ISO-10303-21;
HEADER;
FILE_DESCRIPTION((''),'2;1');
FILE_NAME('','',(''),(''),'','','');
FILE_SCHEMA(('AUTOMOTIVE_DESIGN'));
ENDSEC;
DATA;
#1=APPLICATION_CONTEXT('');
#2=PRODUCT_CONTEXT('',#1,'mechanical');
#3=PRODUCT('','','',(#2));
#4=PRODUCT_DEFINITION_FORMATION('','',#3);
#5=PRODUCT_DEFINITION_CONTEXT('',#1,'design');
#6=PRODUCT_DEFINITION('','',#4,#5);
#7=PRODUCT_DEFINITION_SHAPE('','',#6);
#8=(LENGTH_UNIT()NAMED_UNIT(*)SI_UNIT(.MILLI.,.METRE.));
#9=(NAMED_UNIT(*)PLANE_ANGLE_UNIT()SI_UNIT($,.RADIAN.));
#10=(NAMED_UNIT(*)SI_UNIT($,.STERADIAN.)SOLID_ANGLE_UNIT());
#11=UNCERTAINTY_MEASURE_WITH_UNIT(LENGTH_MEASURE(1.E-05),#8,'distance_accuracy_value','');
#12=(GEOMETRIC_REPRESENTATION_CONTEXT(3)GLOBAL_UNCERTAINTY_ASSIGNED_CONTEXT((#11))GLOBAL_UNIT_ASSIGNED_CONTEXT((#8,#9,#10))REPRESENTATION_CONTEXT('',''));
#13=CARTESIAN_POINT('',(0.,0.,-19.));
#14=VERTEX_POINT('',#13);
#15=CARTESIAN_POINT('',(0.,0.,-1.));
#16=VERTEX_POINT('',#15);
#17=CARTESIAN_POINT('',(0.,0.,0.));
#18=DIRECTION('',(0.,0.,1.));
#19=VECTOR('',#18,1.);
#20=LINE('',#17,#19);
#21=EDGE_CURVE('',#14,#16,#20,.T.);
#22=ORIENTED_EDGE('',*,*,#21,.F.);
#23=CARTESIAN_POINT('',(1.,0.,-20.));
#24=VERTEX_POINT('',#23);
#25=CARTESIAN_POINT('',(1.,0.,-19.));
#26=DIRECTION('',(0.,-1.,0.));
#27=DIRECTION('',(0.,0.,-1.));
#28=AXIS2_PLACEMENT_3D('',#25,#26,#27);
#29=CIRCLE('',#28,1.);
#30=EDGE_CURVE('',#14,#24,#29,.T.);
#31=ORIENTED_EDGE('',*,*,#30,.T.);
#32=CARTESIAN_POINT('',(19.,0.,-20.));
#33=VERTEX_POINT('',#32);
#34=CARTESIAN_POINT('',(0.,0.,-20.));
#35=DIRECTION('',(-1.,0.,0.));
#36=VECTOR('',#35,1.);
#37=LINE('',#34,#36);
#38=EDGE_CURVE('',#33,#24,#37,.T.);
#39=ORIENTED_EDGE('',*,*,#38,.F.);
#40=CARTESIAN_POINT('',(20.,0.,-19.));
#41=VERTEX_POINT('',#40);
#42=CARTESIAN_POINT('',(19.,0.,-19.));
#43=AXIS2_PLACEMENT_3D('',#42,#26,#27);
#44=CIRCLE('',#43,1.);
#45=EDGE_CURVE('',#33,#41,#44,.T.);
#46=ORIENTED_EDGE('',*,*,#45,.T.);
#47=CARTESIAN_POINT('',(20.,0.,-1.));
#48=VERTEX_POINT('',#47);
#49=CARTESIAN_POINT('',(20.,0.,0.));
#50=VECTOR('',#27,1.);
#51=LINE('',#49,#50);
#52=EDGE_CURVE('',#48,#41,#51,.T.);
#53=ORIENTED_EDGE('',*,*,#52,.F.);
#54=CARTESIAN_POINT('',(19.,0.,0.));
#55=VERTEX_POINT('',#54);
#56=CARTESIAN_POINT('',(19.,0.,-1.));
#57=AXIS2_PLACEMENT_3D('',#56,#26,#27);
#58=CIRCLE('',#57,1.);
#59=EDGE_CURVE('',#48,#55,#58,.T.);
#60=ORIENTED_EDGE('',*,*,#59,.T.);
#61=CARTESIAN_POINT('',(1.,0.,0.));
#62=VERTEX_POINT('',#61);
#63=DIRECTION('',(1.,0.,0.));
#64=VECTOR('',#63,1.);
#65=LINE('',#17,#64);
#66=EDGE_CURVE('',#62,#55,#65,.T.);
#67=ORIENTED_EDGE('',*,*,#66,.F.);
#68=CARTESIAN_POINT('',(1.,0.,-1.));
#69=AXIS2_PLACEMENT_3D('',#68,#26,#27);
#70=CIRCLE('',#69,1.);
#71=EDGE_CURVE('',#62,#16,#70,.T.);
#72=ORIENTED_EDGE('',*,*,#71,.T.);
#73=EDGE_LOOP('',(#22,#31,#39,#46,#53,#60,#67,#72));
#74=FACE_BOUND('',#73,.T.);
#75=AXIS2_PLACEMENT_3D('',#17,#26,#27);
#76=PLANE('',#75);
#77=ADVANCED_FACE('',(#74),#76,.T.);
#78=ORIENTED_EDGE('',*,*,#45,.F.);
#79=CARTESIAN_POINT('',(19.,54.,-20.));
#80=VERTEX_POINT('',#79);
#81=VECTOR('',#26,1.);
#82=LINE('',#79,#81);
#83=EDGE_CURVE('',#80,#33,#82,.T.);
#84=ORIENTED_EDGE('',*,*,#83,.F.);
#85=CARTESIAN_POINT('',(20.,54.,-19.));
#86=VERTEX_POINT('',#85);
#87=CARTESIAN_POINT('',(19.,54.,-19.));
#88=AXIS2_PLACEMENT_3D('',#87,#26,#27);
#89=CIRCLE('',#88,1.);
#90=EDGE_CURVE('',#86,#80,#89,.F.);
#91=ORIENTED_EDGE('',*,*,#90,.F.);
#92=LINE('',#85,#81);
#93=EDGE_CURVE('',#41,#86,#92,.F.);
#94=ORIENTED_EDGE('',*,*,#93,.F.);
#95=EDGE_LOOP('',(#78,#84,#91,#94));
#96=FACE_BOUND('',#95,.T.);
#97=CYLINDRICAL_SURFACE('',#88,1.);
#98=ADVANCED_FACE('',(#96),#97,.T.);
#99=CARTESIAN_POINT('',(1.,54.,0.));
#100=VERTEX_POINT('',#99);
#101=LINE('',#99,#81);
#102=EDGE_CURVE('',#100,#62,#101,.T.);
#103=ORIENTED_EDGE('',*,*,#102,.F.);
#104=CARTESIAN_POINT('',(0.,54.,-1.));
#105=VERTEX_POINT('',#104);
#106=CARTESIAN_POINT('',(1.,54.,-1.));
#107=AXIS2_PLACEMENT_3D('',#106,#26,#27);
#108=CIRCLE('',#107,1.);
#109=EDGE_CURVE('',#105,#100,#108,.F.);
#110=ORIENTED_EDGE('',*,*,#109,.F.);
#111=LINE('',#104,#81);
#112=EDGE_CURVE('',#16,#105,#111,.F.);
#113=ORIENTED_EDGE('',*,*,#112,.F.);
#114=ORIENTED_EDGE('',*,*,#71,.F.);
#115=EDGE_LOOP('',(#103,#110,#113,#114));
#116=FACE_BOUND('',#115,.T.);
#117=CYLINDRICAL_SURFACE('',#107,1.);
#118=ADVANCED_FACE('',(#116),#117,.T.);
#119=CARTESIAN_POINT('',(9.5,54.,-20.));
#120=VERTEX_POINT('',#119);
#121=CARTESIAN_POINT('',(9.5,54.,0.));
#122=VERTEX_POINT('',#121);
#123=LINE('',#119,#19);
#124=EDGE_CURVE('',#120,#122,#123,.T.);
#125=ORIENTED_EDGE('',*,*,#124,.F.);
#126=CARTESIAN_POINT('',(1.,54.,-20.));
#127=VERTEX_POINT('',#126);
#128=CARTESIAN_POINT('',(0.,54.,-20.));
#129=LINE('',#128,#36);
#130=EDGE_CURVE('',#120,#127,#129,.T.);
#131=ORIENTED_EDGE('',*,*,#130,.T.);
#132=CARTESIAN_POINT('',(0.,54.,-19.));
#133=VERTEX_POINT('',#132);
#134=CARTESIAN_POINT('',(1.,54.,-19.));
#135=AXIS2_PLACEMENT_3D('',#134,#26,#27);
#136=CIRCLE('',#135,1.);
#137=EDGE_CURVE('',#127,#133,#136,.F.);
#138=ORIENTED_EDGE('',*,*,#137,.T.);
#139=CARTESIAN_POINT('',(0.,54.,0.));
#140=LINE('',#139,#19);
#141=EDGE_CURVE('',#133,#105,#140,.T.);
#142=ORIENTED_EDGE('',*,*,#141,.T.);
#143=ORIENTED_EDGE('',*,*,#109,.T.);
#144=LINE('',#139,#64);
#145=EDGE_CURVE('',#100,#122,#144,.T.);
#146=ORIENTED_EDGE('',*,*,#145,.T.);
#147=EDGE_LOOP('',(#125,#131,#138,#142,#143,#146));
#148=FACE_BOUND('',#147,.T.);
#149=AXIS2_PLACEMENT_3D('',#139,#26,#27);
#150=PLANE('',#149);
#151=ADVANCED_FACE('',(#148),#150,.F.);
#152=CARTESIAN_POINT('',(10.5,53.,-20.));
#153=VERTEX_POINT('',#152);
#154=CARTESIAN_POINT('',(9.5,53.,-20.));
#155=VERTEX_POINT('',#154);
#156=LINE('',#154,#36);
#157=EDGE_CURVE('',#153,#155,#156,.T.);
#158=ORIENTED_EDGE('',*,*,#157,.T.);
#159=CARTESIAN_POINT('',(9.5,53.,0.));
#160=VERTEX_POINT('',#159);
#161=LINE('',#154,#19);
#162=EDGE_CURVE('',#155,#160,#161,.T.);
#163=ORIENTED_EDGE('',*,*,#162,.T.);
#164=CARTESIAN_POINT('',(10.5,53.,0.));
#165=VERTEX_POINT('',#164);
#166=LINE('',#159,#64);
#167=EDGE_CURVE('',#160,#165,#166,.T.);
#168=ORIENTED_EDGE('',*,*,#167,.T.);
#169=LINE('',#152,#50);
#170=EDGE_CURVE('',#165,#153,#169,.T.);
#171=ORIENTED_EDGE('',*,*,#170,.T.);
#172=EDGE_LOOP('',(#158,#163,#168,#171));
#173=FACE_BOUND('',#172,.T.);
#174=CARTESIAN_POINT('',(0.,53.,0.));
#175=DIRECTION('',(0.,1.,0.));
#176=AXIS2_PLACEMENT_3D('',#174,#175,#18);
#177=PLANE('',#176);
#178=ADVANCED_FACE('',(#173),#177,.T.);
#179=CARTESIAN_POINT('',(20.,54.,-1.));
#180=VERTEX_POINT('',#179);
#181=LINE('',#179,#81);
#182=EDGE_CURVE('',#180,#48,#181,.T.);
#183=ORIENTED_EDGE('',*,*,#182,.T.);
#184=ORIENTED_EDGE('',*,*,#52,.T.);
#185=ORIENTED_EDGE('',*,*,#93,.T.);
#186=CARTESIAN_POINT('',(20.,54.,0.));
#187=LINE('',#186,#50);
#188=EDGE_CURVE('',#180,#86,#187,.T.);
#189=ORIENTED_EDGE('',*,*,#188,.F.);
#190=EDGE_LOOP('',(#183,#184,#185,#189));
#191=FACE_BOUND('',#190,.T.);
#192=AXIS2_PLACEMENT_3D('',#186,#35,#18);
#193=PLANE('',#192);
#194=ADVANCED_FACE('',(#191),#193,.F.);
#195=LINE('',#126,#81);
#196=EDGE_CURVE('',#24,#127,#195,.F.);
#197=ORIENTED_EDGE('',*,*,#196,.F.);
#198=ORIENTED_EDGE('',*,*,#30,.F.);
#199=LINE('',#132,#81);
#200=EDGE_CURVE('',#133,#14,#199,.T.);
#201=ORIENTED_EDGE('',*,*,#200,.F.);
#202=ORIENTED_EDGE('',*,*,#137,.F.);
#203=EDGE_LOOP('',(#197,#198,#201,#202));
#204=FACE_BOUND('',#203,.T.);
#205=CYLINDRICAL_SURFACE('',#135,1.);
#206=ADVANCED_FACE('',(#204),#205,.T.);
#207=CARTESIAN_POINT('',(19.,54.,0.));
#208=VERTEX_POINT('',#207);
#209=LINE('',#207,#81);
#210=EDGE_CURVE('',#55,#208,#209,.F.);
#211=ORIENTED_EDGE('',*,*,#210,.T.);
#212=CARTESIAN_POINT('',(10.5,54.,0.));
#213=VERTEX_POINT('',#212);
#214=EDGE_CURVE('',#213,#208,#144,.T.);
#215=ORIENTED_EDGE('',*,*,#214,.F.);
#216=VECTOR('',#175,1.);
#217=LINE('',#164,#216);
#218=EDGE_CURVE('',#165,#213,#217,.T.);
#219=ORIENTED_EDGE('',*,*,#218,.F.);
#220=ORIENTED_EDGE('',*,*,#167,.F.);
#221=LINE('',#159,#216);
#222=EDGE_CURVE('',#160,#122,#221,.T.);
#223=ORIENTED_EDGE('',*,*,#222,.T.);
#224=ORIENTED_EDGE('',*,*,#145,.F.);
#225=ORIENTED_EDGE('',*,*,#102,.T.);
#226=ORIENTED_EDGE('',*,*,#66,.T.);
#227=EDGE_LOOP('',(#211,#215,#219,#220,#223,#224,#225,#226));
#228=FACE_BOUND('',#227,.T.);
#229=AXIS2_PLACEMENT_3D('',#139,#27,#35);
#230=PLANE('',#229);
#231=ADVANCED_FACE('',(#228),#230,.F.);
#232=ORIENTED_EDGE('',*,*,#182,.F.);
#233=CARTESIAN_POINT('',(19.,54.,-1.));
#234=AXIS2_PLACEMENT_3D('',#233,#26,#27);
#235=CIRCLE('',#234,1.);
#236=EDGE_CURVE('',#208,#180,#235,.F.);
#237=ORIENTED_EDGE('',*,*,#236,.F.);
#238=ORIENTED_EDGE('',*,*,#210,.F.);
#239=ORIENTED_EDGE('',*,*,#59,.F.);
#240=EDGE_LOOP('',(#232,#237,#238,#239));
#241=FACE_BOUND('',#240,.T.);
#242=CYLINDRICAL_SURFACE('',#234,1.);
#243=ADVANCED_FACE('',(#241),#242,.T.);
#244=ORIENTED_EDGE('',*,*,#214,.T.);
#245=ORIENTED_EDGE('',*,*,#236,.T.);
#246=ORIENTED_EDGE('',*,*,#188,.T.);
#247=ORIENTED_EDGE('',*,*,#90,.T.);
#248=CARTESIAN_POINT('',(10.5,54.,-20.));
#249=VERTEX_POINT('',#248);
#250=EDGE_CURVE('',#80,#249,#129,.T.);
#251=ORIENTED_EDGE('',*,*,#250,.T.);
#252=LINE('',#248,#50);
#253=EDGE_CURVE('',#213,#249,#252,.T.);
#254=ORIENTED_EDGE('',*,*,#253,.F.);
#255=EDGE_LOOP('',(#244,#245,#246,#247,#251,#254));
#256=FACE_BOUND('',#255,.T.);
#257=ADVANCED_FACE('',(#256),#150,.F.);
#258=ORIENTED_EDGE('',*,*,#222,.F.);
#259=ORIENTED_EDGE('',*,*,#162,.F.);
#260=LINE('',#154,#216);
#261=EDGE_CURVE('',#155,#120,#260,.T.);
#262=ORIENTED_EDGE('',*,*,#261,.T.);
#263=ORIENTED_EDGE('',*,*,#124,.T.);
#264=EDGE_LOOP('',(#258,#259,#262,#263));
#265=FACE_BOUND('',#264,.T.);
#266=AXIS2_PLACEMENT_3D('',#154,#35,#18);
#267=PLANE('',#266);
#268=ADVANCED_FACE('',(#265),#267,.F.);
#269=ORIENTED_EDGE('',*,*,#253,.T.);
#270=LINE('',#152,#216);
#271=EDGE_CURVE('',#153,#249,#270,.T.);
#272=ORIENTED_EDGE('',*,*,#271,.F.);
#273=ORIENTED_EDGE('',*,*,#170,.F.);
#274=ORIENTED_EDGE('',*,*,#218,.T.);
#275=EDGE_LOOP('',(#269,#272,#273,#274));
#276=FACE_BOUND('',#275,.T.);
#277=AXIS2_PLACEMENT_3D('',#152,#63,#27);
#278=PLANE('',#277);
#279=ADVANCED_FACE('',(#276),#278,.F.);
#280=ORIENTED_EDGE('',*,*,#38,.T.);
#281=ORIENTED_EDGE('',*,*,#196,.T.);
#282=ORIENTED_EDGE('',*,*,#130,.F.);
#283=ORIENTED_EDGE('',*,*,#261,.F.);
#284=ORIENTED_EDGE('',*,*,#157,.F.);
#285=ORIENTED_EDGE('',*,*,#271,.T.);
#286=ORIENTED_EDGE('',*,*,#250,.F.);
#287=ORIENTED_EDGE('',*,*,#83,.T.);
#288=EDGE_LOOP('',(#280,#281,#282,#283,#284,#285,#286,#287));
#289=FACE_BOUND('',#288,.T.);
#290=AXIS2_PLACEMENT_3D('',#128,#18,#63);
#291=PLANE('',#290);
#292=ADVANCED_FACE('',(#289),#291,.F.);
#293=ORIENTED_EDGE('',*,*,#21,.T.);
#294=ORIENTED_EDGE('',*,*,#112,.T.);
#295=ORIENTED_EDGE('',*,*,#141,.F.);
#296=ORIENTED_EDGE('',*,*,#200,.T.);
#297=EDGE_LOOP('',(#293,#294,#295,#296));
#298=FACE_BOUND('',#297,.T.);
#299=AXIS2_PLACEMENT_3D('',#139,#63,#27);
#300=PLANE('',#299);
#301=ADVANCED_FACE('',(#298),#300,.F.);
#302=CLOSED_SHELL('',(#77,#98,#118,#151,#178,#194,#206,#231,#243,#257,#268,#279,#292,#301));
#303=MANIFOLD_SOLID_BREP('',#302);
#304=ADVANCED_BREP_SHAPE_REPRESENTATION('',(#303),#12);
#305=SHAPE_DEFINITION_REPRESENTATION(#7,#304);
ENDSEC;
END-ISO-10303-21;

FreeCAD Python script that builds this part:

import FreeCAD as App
import Part
import Sketcher
Q = App.Units.Quantity


def edges_at(feature, points):
    """Names of the edges that pass closest to the given points."""
    edges = feature.Shape.Edges
    near = lambda p: min(range(len(edges)), key=lambda i: edges[i].distToShape(Part.Vertex(*p))[0])
    return sorted({f"Edge{near(p) + 1}" for p in points})

doc = App.newDocument("Part")
body = doc.addObject("PartDesign::Body", "Body")

# Sketch on XZ plane
sketch1 = body.newObject("Sketcher::SketchObject", "Sketch")
sketch1.AttachmentSupport = (doc.getObject("XZ_Plane"), [""])
sketch1.MapMode = "FlatFace"
sketch1.addGeometry(Part.LineSegment(App.Vector(0, -20, 0), App.Vector(0, 0, 0)), False)
sketch1.addGeometry(Part.LineSegment(App.Vector(0, 0, 0), App.Vector(20, 0, 0)), False)
sketch1.addGeometry(Part.LineSegment(App.Vector(20, 0, 0), App.Vector(20, -20, 0)), False)
sketch1.addGeometry(Part.LineSegment(App.Vector(20, -20, 0), App.Vector(0, -20, 0)), False)
sketch1.addConstraint(Sketcher.Constraint("Coincident", 0, 2, 1, 1))
sketch1.addConstraint(Sketcher.Constraint("Coincident", 1, 2, 2, 1))
sketch1.addConstraint(Sketcher.Constraint("Coincident", 2, 2, 3, 1))
sketch1.addConstraint(Sketcher.Constraint("Coincident", 3, 2, 0, 1))
sketch1.addConstraint(Sketcher.Constraint("Vertical", 0))
sketch1.addConstraint(Sketcher.Constraint("Horizontal", 1))
sketch1.addConstraint(Sketcher.Constraint("Vertical", 2))
sketch1.addConstraint(Sketcher.Constraint("Horizontal", 3))
sketch1.addConstraint(Sketcher.Constraint("Coincident", 0, 2, -1, 1))
sketch1.addConstraint(Sketcher.Constraint("Equal", 3, 0))
sketch1.addConstraint(Sketcher.Constraint("DistanceX", 1, 1, 1, 2, Q("20 mm")))
pad1 = body.newObject("PartDesign::Pad", "Pad")
pad1.Profile = sketch1
pad1.Length = 54
pad1.Reversed = True
doc.recompute()

fillet = body.newObject("PartDesign::Fillet", "Fillet")
fillet.Base = (pad1, edges_at(pad1, [
    (0, 27, -20),
    (20, 27, -20),
    (20, 27, 0),
    (0, 27, 0),
]))
fillet.Radius = 1

# Sketch on XZ plane
sketch2 = body.newObject("Sketcher::SketchObject", "Sketch001")
sketch2.AttachmentSupport = (doc.getObject("XZ_Plane"), [""])
sketch2.MapMode = "FlatFace"
sketch2.AttachmentOffset = App.Placement(App.Vector(0, 0, -54), App.Rotation())
sketch2.addGeometry(Part.LineSegment(App.Vector(9.5, -20, 0), App.Vector(9.5, 0, 0)), False)
sketch2.addGeometry(Part.LineSegment(App.Vector(9.5, 0, 0), App.Vector(10.5, 0, 0)), False)
sketch2.addGeometry(Part.LineSegment(App.Vector(10.5, 0, 0), App.Vector(10.5, -20, 0)), False)
sketch2.addGeometry(Part.LineSegment(App.Vector(10.5, -20, 0), App.Vector(9.5, -20, 0)), False)
sketch2.addConstraint(Sketcher.Constraint("Coincident", 0, 2, 1, 1))
sketch2.addConstraint(Sketcher.Constraint("Coincident", 1, 2, 2, 1))
sketch2.addConstraint(Sketcher.Constraint("Coincident", 2, 2, 3, 1))
sketch2.addConstraint(Sketcher.Constraint("Coincident", 3, 2, 0, 1))
sketch2.addConstraint(Sketcher.Constraint("Vertical", 0))
sketch2.addConstraint(Sketcher.Constraint("Horizontal", 1))
sketch2.addConstraint(Sketcher.Constraint("Vertical", 2))
sketch2.addConstraint(Sketcher.Constraint("Horizontal", 3))
sketch2.addConstraint(Sketcher.Constraint("PointOnObject", 0, 2, -1))
sketch2.addConstraint(Sketcher.Constraint("DistanceX", 1, 1, 1, 2, Q("1 mm")))
sketch2.addConstraint(Sketcher.Constraint("DistanceY", 0, 1, 0, 2, Q("20 mm")))
sketch2.addConstraint(Sketcher.Constraint("DistanceX", -1, 1, 0, 2, Q("9.5 mm")))
pocket1 = body.newObject("PartDesign::Pocket", "Pocket")
pocket1.Profile = sketch2
pocket1.Length = 1
pocket1.Reversed = True

doc.recompute()
